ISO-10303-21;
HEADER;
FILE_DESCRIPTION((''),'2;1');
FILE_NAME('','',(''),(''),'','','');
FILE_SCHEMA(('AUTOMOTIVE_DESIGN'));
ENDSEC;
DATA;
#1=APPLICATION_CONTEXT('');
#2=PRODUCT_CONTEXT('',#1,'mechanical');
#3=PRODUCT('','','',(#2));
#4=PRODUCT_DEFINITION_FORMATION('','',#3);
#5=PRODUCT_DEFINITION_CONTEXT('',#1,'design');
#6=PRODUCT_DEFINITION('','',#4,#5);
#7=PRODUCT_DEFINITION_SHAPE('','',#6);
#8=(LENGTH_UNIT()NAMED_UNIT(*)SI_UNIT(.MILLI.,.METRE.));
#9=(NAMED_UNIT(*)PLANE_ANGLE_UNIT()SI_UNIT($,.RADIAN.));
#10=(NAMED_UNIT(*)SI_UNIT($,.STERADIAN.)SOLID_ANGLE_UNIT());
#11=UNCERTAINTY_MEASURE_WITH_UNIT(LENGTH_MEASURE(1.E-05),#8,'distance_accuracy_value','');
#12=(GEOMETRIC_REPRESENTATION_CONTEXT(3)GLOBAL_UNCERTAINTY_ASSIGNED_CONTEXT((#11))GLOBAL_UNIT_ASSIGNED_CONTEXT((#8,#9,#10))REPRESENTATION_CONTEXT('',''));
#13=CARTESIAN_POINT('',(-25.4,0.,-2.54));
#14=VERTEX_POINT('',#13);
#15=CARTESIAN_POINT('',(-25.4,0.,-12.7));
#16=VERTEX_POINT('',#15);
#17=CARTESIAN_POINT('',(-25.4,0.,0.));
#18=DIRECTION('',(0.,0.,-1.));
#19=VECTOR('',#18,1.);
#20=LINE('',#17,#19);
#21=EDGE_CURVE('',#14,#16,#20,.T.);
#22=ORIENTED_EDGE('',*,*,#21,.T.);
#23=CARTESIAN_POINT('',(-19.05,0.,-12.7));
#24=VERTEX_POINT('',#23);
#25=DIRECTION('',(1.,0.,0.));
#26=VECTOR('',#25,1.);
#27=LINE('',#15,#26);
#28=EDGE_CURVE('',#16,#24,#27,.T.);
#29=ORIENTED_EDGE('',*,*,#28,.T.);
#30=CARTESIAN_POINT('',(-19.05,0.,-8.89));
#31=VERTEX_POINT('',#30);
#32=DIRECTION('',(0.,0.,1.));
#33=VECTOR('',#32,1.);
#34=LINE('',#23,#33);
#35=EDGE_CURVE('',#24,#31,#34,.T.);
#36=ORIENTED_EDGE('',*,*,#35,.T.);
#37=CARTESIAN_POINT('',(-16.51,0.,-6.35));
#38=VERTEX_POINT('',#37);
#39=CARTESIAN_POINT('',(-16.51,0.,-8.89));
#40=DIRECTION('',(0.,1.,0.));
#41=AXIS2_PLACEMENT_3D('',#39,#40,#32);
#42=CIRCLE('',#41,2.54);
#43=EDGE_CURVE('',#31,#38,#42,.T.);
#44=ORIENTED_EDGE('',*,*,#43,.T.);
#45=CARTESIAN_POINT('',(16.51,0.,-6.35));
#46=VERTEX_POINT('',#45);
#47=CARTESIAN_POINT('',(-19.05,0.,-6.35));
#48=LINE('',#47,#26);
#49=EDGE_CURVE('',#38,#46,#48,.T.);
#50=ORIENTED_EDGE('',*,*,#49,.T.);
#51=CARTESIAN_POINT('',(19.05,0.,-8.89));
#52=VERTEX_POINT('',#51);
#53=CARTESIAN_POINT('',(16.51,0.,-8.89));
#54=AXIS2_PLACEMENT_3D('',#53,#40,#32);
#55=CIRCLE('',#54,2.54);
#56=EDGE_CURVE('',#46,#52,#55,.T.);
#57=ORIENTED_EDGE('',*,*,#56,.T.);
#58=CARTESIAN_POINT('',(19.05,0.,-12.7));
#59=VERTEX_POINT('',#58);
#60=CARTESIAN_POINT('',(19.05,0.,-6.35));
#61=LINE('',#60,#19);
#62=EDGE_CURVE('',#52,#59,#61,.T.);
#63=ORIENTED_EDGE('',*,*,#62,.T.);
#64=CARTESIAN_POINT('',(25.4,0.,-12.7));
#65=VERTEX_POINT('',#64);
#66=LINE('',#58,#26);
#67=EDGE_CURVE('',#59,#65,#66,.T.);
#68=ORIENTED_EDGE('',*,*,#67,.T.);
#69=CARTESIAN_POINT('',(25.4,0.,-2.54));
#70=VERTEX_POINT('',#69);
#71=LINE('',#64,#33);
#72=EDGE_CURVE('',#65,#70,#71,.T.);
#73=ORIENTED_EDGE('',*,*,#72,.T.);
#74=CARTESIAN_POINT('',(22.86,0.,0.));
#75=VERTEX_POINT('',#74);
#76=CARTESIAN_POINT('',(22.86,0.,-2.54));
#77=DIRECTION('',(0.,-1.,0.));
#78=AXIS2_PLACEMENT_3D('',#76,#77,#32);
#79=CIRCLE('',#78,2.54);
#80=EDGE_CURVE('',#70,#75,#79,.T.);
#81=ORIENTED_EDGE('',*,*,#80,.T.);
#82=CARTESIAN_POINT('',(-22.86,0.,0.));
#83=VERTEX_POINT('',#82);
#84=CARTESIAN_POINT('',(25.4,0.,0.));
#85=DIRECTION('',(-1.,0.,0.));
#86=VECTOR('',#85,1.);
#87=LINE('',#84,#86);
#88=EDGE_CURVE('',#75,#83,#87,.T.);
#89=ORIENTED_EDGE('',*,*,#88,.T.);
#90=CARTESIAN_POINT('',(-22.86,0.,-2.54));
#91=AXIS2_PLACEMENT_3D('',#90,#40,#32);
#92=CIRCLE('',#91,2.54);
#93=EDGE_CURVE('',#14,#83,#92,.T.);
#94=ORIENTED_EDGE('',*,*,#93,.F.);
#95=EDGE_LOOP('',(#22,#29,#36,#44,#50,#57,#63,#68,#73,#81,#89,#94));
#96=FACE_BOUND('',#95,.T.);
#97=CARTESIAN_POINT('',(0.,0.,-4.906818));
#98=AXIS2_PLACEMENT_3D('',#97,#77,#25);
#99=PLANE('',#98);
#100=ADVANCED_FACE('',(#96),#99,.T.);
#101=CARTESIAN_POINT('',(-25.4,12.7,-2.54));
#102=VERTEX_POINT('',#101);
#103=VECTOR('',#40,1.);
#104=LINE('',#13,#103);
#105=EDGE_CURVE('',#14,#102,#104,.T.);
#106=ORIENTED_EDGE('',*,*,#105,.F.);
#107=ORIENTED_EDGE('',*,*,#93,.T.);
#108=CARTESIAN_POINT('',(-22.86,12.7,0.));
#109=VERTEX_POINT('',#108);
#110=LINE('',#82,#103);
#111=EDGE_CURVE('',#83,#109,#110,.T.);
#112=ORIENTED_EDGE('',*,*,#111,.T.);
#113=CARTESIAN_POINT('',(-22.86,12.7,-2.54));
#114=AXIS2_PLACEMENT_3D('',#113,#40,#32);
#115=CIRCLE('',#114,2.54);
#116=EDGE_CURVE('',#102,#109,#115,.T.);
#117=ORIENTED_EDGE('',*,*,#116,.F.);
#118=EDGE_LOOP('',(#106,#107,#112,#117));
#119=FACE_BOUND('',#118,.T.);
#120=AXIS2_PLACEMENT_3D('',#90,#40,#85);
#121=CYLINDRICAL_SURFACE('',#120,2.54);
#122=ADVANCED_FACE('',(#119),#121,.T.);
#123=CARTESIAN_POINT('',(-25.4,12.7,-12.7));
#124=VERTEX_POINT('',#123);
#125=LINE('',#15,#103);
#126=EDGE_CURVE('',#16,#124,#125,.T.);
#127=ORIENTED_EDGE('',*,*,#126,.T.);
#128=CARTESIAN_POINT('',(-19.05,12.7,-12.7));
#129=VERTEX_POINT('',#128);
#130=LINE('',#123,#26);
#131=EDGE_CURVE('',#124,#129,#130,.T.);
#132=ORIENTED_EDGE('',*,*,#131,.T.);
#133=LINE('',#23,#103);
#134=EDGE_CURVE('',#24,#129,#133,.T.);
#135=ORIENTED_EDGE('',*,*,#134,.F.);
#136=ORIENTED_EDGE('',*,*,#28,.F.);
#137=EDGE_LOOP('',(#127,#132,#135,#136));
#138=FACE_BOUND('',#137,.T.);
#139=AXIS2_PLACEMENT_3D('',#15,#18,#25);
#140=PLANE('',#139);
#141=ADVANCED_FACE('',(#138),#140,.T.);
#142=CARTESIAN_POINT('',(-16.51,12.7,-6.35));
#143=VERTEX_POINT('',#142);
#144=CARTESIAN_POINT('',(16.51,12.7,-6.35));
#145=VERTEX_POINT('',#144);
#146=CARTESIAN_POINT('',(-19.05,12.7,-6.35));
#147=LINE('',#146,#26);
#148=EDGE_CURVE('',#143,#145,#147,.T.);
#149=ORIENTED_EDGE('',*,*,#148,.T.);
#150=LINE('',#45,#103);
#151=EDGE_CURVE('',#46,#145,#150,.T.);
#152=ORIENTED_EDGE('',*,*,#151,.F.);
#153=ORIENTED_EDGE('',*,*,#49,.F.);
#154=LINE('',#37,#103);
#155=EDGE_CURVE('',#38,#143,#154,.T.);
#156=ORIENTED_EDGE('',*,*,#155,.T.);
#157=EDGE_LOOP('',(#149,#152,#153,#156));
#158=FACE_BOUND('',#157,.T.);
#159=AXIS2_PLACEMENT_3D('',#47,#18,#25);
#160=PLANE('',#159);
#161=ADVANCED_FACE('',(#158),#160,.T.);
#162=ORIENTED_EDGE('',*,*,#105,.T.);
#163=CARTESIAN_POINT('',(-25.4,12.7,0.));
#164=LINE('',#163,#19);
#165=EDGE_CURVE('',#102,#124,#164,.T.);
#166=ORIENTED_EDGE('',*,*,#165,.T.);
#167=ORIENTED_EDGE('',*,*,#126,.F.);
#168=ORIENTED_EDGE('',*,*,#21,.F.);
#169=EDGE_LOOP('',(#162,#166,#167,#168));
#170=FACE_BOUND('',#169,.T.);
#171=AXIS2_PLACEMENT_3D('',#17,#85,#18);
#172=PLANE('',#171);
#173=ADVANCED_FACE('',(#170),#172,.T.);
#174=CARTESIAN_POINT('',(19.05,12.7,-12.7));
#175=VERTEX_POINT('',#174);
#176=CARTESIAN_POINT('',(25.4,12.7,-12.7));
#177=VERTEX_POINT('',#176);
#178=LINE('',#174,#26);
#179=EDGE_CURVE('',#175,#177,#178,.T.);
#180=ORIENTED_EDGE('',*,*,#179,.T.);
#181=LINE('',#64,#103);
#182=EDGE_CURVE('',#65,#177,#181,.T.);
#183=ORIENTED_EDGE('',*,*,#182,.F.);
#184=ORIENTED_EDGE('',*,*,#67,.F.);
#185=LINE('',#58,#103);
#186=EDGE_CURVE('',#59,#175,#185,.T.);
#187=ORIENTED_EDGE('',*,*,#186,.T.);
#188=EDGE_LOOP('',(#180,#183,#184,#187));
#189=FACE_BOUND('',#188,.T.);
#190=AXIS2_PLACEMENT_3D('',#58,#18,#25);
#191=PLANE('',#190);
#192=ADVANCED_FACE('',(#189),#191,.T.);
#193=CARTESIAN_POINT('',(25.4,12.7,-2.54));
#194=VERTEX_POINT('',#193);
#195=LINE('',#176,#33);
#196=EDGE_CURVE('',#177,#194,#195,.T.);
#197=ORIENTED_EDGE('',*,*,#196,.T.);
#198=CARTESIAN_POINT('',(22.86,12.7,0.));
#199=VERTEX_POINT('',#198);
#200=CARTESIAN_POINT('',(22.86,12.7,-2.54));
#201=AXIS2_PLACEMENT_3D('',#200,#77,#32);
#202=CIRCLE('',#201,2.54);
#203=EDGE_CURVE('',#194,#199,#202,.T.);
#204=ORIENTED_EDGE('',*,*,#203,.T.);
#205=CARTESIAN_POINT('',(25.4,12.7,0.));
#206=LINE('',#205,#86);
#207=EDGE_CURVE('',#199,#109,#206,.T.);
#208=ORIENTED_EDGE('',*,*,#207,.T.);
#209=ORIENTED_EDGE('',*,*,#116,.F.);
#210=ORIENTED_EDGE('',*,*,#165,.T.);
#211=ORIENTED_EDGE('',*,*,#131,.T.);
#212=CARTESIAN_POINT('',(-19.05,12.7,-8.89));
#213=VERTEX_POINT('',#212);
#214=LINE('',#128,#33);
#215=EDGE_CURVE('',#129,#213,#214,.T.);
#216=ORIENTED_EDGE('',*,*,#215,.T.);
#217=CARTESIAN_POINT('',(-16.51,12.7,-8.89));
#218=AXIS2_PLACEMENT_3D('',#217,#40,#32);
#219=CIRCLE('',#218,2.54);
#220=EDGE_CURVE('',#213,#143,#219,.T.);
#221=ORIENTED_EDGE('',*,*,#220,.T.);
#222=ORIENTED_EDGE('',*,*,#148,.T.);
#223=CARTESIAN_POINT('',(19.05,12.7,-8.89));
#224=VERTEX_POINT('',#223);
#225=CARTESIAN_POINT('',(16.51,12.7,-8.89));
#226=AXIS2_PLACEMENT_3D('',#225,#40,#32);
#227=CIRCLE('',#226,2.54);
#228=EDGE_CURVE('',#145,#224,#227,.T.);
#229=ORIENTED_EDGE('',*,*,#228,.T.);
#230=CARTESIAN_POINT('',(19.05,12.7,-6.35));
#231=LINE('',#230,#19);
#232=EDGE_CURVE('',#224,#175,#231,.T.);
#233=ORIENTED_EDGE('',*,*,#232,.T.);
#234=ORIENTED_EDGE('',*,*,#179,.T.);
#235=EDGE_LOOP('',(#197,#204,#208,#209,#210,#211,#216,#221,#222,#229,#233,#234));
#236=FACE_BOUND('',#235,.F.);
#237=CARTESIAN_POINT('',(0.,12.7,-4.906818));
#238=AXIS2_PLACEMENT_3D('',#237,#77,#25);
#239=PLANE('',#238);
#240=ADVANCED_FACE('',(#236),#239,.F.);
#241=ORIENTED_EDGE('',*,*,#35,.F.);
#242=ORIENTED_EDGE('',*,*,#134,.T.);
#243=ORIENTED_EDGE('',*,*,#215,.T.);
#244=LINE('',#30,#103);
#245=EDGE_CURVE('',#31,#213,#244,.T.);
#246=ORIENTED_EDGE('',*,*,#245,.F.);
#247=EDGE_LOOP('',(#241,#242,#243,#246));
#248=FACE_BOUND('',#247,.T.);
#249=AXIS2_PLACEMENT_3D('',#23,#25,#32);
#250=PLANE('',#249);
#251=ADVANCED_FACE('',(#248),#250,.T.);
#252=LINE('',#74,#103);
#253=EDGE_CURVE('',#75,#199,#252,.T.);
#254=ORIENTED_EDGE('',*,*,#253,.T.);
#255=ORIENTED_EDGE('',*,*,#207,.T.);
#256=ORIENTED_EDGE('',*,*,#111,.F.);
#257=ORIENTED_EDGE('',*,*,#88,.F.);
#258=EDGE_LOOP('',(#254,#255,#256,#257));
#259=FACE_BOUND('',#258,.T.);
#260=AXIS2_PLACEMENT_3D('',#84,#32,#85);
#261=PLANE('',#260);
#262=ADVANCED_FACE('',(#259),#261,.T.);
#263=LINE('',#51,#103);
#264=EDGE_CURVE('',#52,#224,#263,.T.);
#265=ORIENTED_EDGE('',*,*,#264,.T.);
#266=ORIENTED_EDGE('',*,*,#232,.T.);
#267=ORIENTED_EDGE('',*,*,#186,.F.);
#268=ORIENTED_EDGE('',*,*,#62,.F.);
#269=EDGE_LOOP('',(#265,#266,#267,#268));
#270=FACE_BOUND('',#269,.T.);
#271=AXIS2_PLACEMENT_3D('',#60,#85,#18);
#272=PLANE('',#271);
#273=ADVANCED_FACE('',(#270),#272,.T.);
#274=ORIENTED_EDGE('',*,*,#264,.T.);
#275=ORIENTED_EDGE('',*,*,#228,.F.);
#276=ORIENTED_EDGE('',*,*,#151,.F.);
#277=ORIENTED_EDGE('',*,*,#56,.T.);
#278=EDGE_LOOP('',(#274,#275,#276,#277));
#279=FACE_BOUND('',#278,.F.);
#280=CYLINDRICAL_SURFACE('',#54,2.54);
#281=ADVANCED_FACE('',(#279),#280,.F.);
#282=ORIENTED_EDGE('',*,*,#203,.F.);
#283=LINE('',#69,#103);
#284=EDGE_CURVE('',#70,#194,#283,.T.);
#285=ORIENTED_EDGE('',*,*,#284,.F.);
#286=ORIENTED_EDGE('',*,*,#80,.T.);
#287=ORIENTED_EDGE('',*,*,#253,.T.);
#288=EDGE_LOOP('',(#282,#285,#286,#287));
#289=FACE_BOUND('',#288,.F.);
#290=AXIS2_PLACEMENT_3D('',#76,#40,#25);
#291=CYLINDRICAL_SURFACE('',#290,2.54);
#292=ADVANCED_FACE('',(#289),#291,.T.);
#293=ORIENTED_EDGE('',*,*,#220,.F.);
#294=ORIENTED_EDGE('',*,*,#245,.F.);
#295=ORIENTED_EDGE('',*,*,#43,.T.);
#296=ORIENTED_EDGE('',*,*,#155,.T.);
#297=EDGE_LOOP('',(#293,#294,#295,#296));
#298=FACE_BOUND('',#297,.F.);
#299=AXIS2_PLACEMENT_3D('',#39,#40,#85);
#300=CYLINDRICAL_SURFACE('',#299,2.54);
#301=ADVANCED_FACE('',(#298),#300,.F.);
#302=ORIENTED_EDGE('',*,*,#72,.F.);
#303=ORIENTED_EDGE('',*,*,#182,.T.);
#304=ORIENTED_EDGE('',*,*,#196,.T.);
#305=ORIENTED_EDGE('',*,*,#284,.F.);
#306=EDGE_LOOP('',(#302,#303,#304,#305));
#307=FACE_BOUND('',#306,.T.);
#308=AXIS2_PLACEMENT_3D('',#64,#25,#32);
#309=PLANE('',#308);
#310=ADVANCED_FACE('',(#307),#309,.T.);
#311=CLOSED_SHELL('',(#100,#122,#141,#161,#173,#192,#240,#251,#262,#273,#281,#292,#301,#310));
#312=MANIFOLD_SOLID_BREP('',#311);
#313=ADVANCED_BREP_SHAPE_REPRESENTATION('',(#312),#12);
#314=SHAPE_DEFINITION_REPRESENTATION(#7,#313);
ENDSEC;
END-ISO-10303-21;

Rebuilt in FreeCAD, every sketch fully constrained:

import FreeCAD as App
import Part
import Sketcher
from FreeCAD import Vector
Q = App.Units.Quantity


def edges_at(feature, points):
    """Names of the edges that pass closest to the given points."""
    edges = feature.Shape.Edges
    near = lambda p: min(range(len(edges)), key=lambda i: edges[i].distToShape(Part.Vertex(*p))[0])
    return sorted({f"Edge{near(p) + 1}" for p in points})

doc = App.newDocument("Part")
body = doc.addObject("PartDesign::Body", "Body")

sketch1 = body.newObject("Sketcher::SketchObject", "Sketch")
sketch1.AttachmentSupport = (doc.getObject("XZ_Plane"), [""])
sketch1.MapMode = "FlatFace"
sketch1.addGeometry(Part.LineSegment(Vector(-25, 0, 0), Vector(-25, -13, 0)), False)
sketch1.addGeometry(Part.LineSegment(Vector(-25, -13, 0), Vector(-19, -13, 0)), False)
sketch1.addGeometry(Part.LineSegment(Vector(-19, -13, 0), Vector(-19, -6, 0)), False)
sketch1.addGeometry(Part.LineSegment(Vector(-19, -6, 0), Vector(19, -6, 0)), False)
sketch1.addGeometry(Part.LineSegment(Vector(19, -6, 0), Vector(19, -13, 0)), False)
sketch1.addGeometry(Part.LineSegment(Vector(19, -13, 0), Vector(25, -13, 0)), False)
sketch1.addGeometry(Part.LineSegment(Vector(25, -13, 0), Vector(25, 0, 0)), False)
sketch1.addGeometry(Part.LineSegment(Vector(25, 0, 0), Vector(-25, 0, 0)), False)
sketch1.addConstraint(Sketcher.Constraint("Coincident", 0, 2, 1, 1))
sketch1.addConstraint(Sketcher.Constraint("Coincident", 1, 2, 2, 1))
sketch1.addConstraint(Sketcher.Constraint("Coincident", 2, 2, 3, 1))
sketch1.addConstraint(Sketcher.Constraint("Coincident", 3, 2, 4, 1))
sketch1.addConstraint(Sketcher.Constraint("Coincident", 4, 2, 5, 1))
sketch1.addConstraint(Sketcher.Constraint("Coincident", 5, 2, 6, 1))
sketch1.addConstraint(Sketcher.Constraint("Coincident", 6, 2, 7, 1))
sketch1.addConstraint(Sketcher.Constraint("Coincident", 7, 2, 0, 1))
sketch1.addConstraint(Sketcher.Constraint("Vertical", 0))
sketch1.addConstraint(Sketcher.Constraint("Horizontal", 1))
sketch1.addConstraint(Sketcher.Constraint("Vertical", 2))
sketch1.addConstraint(Sketcher.Constraint("Horizontal", 3))
sketch1.addConstraint(Sketcher.Constraint("Vertical", 4))
sketch1.addConstraint(Sketcher.Constraint("Horizontal", 5))
sketch1.addConstraint(Sketcher.Constraint("Vertical", 6))
sketch1.addConstraint(Sketcher.Constraint("Horizontal", 7))
sketch1.addConstraint(Sketcher.Constraint("Symmetric", 6, 2, 7, 2, -1, 1))
sketch1.addConstraint(Sketcher.Constraint("Symmetric", 1, 2, 4, 2, -2))
sketch1.addConstraint(Sketcher.Constraint("Equal", 5, 2))
sketch1.addConstraint(Sketcher.Constraint("DistanceX", 7, 2, 7, 1, Q("2 in")))
sketch1.addConstraint(Sketcher.Constraint("DistanceX", 3, 1, 3, 2, Q("1.5 in")))
sketch1.addConstraint(Sketcher.Constraint("DistanceY", 0, 2, 0, 1, Q("0.5 in")))
pad1 = body.newObject("PartDesign::Pad", "Pad")
pad1.Profile = sketch1
pad1.Length = Q("0.5 in")
pad1.Reversed = True
doc.recompute()

fillet = body.newObject("PartDesign::Fillet", "Fillet")
fillet.Base = (pad1, edges_at(pad1, [
    (-19.05, 6.35, -6.35),
    (19.05, 6.35, -6.35),
    (-25.4, 6.35, 0),
    (25.4, 6.35, 0),
]))
fillet.Radius = Q("0.1 in")

doc.recompute()
